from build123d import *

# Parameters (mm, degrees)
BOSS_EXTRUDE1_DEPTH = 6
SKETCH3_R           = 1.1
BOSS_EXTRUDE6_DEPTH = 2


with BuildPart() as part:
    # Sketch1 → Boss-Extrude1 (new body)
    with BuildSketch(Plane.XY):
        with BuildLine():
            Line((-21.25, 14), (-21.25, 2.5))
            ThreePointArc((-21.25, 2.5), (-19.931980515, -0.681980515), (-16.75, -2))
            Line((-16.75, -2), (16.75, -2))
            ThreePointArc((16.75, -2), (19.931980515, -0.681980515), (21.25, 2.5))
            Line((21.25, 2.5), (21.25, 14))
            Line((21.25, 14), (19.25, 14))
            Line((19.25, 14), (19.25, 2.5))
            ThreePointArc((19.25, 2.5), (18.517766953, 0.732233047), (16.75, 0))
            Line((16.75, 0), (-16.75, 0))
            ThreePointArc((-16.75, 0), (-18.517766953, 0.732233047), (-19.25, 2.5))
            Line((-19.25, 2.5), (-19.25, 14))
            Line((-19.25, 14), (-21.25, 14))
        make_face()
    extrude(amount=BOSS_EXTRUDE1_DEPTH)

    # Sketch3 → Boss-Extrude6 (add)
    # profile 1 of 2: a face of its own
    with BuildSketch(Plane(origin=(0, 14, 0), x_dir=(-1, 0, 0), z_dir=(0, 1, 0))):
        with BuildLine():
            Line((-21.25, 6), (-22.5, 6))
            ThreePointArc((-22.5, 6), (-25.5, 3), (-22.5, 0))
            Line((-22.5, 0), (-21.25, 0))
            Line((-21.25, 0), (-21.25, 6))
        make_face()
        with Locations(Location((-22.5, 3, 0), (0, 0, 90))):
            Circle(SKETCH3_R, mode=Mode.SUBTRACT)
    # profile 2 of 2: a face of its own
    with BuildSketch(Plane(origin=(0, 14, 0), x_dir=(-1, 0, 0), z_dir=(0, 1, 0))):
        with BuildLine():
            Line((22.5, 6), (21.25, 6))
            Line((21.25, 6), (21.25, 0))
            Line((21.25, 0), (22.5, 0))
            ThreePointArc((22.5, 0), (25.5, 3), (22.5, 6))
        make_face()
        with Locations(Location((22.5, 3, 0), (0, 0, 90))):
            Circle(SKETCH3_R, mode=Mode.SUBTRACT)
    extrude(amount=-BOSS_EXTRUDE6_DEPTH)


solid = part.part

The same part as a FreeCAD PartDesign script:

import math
import FreeCAD as App
import Part
import Sketcher
Q = App.Units.Quantity

doc = App.newDocument("Part")
body = doc.addObject("PartDesign::Body", "Body")

# Sketch on XY plane
sketch1 = doc.addObject("Sketcher::SketchObject", "Sketch")
body.addObject(sketch1)
sketch1.AttachmentSupport = (doc.XY_Plane, [""])
sketch1.MapMode = "FlatFace"
sketch1.addGeometry(Part.LineSegment(App.Vector(-21.25, 14, 0), App.Vector(-21.25, 2.5, 0)), False)
sketch1.addGeometry(Part.ArcOfCircle(Part.Circle(App.Vector(-16.75, 2.5, 0), App.Vector(0, 0, 1), 4.5), math.radians(-180), math.radians(-90)), False)
sketch1.addGeometry(Part.LineSegment(App.Vector(-16.75, -2, 0), App.Vector(16.75, -2, 0)), False)
sketch1.addGeometry(Part.ArcOfCircle(Part.Circle(App.Vector(16.75, 2.5, 0), App.Vector(0, 0, 1), 4.5), math.radians(-90), math.radians(0)), False)
sketch1.addGeometry(Part.LineSegment(App.Vector(21.25, 2.5, 0), App.Vector(21.25, 14, 0)), False)
sketch1.addGeometry(Part.LineSegment(App.Vector(21.25, 14, 0), App.Vector(19.25, 14, 0)), False)
sketch1.addGeometry(Part.LineSegment(App.Vector(19.25, 14, 0), App.Vector(19.25, 2.5, 0)), False)
sketch1.addGeometry(Part.ArcOfCircle(Part.Circle(App.Vector(16.75, 2.5, 0), App.Vector(0, 0, 1), 2.5), math.radians(-90), math.radians(0)), False)
sketch1.addGeometry(Part.LineSegment(App.Vector(16.75, 0, 0), App.Vector(-16.75, 0, 0)), False)
sketch1.addGeometry(Part.ArcOfCircle(Part.Circle(App.Vector(-16.75, 2.5, 0), App.Vector(0, 0, 1), 2.5), math.radians(180), math.radians(270)), False)
sketch1.addGeometry(Part.LineSegment(App.Vector(-19.25, 2.5, 0), App.Vector(-19.25, 14, 0)), False)
sketch1.addGeometry(Part.LineSegment(App.Vector(-19.25, 14, 0), App.Vector(-21.25, 14, 0)), False)
sketch1.addConstraint(Sketcher.Constraint("Tangent", 0, 2, 1, 1))
sketch1.addConstraint(Sketcher.Constraint("Tangent", 1, 2, 2, 1))
sketch1.addConstraint(Sketcher.Constraint("Tangent", 2, 2, 3, 1))
sketch1.addConstraint(Sketcher.Constraint("Tangent", 3, 2, 4, 1))
sketch1.addConstraint(Sketcher.Constraint("Coincident", 4, 2, 5, 1))
sketch1.addConstraint(Sketcher.Constraint("Coincident", 5, 2, 6, 1))
sketch1.addConstraint(Sketcher.Constraint("Tangent", 6, 2, 7, 2))
sketch1.addConstraint(Sketcher.Constraint("Tangent", 7, 1, 8, 1))
sketch1.addConstraint(Sketcher.Constraint("Tangent", 8, 2, 9, 2))
sketch1.addConstraint(Sketcher.Constraint("Tangent", 9, 1, 10, 1))
sketch1.addConstraint(Sketcher.Constraint("Coincident", 10, 2, 11, 1))
sketch1.addConstraint(Sketcher.Constraint("Coincident", 11, 2, 0, 1))
sketch1.addConstraint(Sketcher.Constraint("Vertical", 0))
sketch1.addConstraint(Sketcher.Constraint("Horizontal", 2))
sketch1.addConstraint(Sketcher.Constraint("Vertical", 4))
sketch1.addConstraint(Sketcher.Constraint("Horizontal", 5))
sketch1.addConstraint(Sketcher.Constraint("Vertical", 6))
sketch1.addConstraint(Sketcher.Constraint("Horizontal", 8))
sketch1.addConstraint(Sketcher.Constraint("Vertical", 10))
sketch1.addConstraint(Sketcher.Constraint("Horizontal", 11))
sketch1.addConstraint(Sketcher.Constraint("Coincident", 7, 3, 3, 3))
sketch1.addConstraint(Sketcher.Constraint("Coincident", 9, 3, 1, 3))
sketch1.addConstraint(Sketcher.Constraint("Equal", 1, 3))
sketch1.addConstraint(Sketcher.Constraint("Symmetric", 7, 1, 8, 2, -1, 1))
sketch1.addConstraint(Sketcher.Constraint("Horizontal", 5, 2, 10, 2))
sketch1.addConstraint(Sketcher.Constraint("Radius", 1, Q("4.5 mm")))
sketch1.addConstraint(Sketcher.Constraint("Radius", 7, Q("2.5 mm")))
sketch1.addConstraint(Sketcher.Constraint("DistanceX", 2, 1, 2, 2, Q("33.5 mm")))
sketch1.addConstraint(Sketcher.Constraint("DistanceY", 0, 2, 0, 1, Q("11.5 mm")))
pad1 = doc.addObject("PartDesign::Pad", "Pad")
body.addObject(pad1)
pad1.Profile = sketch1
pad1.Length = 6

# Sketch on XZ plane
sketch2 = doc.addObject("Sketcher::SketchObject", "Sketch001")
body.addObject(sketch2)
sketch2.AttachmentSupport = (doc.XZ_Plane, [""])
sketch2.MapMode = "FlatFace"
sketch2.AttachmentOffset = App.Placement(App.Vector(0, 0, -14), App.Rotation())
sketch2.addGeometry(Part.LineSegment(App.Vector(21.25, 6, 0), App.Vector(22.5, 6, 0)), False)
sketch2.addGeometry(Part.ArcOfCircle(Part.Circle(App.Vector(22.5, 3, 0), App.Vector(0, 0, 1), 3), math.radians(-90), math.radians(90)), False)
sketch2.addGeometry(Part.LineSegment(App.Vector(22.5, 0, 0), App.Vector(21.25, 0, 0)), False)
sketch2.addGeometry(Part.LineSegment(App.Vector(21.25, 0, 0), App.Vector(21.25, 6, 0)), False)
sketch2.addGeometry(Part.Circle(App.Vector(22.5, 3, 0), App.Vector(0, 0, 1), 1.1), False)
sketch2.addGeometry(Part.LineSegment(App.Vector(-22.5, 6, 0), App.Vector(-21.25, 6, 0)), False)
sketch2.addGeometry(Part.LineSegment(App.Vector(-21.25, 6, 0), App.Vector(-21.25, 0, 0)), False)
sketch2.addGeometry(Part.LineSegment(App.Vector(-21.25, 0, 0), App.Vector(-22.5, 0, 0)), False)
sketch2.addGeometry(Part.ArcOfCircle(Part.Circle(App.Vector(-22.5, 3, 0), App.Vector(0, 0, 1), 3), math.radians(90), math.radians(270)), False)
sketch2.addGeometry(Part.Circle(App.Vector(-22.5, 3, 0), App.Vector(0, 0, 1), 1.1), False)
sketch2.addConstraint(Sketcher.Constraint("Tangent", 0, 2, 1, 2))
sketch2.addConstraint(Sketcher.Constraint("Tangent", 1, 1, 2, 1))
sketch2.addConstraint(Sketcher.Constraint("Coincident", 2, 2, 3, 1))
sketch2.addConstraint(Sketcher.Constraint("Coincident", 3, 2, 0, 1))
sketch2.addConstraint(Sketcher.Constraint("Coincident", 5, 2, 6, 1))
sketch2.addConstraint(Sketcher.Constraint("Coincident", 6, 2, 7, 1))
sketch2.addConstraint(Sketcher.Constraint("Tangent", 7, 2, 8, 2))
sketch2.addConstraint(Sketcher.Constraint("Tangent", 8, 1, 5, 1))
sketch2.addConstraint(Sketcher.Constraint("Horizontal", 0))
sketch2.addConstraint(Sketcher.Constraint("Horizontal", 2))
sketch2.addConstraint(Sketcher.Constraint("Vertical", 3))
sketch2.addConstraint(Sketcher.Constraint("Horizontal", 5))
sketch2.addConstraint(Sketcher.Constraint("Vertical", 6))
sketch2.addConstraint(Sketcher.Constraint("Horizontal", 7))
sketch2.addConstraint(Sketcher.Constraint("Coincident", 4, 3, 1, 3))
sketch2.addConstraint(Sketcher.Constraint("Coincident", 9, 3, 8, 3))
sketch2.addConstraint(Sketcher.Constraint("Equal", 1, 8))
sketch2.addConstraint(Sketcher.Constraint("Equal", 4, 9))
sketch2.addConstraint(Sketcher.Constraint("Symmetric", 2, 2, 6, 2, -1, 1))
sketch2.addConstraint(Sketcher.Constraint("Symmetric", 1, 3, 8, 3, -2))
sketch2.addConstraint(Sketcher.Constraint("Radius", 1, Q("3 mm")))
sketch2.addConstraint(Sketcher.Constraint("Diameter", 4, Q("2.2 mm")))
sketch2.addConstraint(Sketcher.Constraint("DistanceX", 8, 3, 1, 3, Q("45 mm")))
sketch2.addConstraint(Sketcher.Constraint("DistanceX", 0, 1, 0, 2, Q("1.25 mm")))
pad2 = doc.addObject("PartDesign::Pad", "Pad001")
body.addObject(pad2)
pad2.Profile = sketch2
pad2.Length = 2

doc.recompute()
